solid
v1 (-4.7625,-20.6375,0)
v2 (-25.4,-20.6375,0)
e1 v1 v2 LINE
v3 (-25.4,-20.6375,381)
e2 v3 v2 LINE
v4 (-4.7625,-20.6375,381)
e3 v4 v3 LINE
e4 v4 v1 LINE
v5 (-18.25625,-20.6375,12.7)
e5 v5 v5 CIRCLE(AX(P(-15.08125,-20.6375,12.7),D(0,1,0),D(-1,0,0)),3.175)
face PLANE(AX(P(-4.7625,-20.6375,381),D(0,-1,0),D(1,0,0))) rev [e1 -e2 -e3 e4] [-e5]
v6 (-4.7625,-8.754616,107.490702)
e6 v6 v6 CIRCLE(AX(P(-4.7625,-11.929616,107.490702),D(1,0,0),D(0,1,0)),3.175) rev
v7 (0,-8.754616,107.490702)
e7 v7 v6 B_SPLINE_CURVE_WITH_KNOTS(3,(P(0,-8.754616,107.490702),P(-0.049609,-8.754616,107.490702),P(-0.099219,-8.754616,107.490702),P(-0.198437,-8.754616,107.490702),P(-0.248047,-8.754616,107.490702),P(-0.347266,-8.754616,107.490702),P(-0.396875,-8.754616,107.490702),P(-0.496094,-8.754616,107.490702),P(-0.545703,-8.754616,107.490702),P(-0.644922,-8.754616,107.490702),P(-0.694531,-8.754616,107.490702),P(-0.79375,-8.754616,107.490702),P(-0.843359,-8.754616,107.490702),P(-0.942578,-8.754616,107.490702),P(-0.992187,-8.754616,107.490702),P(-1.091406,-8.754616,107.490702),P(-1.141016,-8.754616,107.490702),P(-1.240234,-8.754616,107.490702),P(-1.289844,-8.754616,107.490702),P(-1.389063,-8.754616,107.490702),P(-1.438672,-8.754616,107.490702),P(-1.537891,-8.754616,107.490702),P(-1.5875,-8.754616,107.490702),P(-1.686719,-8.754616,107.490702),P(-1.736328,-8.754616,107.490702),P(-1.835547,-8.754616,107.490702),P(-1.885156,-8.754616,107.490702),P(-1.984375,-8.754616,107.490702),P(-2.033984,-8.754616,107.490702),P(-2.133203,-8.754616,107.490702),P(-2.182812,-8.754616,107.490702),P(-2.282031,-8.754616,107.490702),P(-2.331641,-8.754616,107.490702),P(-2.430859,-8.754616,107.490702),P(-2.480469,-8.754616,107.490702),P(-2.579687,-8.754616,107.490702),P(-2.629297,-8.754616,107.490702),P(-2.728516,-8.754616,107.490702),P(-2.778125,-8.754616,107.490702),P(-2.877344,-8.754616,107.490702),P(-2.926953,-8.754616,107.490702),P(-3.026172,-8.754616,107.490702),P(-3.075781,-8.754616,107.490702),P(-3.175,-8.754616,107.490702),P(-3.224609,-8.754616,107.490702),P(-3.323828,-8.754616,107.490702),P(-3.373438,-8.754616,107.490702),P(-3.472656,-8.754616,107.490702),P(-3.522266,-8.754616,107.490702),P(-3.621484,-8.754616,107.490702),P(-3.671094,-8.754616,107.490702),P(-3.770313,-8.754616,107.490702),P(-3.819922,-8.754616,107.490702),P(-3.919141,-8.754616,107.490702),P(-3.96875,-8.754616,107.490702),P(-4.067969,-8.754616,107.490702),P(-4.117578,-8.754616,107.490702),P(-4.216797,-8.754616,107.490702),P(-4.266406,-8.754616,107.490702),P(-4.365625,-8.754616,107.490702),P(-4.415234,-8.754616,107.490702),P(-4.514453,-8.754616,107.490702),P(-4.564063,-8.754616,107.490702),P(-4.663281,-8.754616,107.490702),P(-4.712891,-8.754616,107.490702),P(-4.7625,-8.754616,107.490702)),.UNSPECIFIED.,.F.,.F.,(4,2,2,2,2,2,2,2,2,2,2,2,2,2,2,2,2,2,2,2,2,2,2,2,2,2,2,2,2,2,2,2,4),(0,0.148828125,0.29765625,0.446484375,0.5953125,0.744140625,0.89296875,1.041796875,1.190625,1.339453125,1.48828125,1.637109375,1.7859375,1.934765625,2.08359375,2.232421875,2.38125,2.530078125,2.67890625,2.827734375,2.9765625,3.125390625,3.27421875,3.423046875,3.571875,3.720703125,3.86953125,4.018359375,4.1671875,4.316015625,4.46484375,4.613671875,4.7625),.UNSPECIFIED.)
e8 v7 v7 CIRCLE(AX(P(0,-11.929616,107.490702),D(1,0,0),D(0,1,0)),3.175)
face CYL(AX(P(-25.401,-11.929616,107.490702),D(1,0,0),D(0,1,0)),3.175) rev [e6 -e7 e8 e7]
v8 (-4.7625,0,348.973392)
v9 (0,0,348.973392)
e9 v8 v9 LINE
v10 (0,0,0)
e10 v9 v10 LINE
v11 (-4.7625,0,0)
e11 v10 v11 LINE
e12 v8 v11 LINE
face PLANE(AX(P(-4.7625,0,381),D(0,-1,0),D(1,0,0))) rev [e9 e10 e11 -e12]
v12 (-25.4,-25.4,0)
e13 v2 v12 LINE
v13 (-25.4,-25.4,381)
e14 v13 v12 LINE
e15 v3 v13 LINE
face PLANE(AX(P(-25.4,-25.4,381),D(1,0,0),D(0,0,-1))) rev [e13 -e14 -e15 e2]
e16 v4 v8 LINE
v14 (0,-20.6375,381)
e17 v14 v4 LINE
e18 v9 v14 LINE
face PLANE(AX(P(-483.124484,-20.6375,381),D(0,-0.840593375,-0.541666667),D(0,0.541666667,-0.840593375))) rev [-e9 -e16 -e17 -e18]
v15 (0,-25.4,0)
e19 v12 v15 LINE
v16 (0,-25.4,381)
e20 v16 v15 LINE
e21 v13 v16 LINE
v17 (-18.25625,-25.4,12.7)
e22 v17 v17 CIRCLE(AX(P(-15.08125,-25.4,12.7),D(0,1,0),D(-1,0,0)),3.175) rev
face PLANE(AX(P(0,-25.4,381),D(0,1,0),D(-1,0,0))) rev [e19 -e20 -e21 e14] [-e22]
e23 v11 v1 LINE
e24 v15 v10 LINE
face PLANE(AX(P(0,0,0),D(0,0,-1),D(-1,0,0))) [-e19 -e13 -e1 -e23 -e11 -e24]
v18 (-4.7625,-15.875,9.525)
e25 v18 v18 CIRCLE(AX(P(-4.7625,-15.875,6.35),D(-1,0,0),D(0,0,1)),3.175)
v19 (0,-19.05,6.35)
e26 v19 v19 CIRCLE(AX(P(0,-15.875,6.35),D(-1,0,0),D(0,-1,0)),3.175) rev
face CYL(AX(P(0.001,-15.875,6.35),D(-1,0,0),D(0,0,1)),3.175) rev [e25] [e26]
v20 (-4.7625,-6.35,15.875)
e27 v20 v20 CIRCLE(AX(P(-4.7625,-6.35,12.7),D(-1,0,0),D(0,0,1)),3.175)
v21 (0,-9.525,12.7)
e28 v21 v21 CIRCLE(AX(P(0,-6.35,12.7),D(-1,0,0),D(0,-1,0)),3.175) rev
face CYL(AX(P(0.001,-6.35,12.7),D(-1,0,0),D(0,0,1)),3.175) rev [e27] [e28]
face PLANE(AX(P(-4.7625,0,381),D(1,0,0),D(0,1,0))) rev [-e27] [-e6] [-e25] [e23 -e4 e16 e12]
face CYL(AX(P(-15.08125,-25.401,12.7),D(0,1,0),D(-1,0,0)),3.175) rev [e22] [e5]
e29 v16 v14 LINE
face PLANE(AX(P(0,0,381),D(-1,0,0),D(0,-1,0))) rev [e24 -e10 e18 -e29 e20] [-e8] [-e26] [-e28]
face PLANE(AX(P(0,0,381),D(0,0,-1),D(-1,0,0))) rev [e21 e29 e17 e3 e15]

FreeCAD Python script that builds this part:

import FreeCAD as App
import Part
import Sketcher
Q = App.Units.Quantity


def add_polygon(sketch, points):
    """Adds a closed chain of lines whose ends are joined by coincident constraints."""
    first, n = sketch.GeometryCount, len(points)
    for a, b in zip(points, points[1:] + points[:1]):
        sketch.addGeometry(Part.LineSegment(App.Vector(*a, 0), App.Vector(*b, 0)), False)
    for i in range(n):
        sketch.addConstraint(Sketcher.Constraint("Coincident", first + i, 2, first + (i + 1) % n, 1))

doc = App.newDocument("Part")
body = doc.addObject("PartDesign::Body", "Body")

# Sketch on XY plane
sketch1 = doc.addObject("Sketcher::SketchObject", "Sketch")
body.addObject(sketch1)
sketch1.AttachmentSupport = (doc.XY_Plane, [""])
sketch1.MapMode = "FlatFace"
add_polygon(sketch1, [(0, -25.4), (0, 0), (-4.8, 0), (-4.8, -20.6), (-25.4, -20.6), (-25.4, -25.4)])  # lines 0-5
sketch1.addConstraint(Sketcher.Constraint("Vertical", 0))
sketch1.addConstraint(Sketcher.Constraint("Horizontal", 1))
sketch1.addConstraint(Sketcher.Constraint("Vertical", 2))
sketch1.addConstraint(Sketcher.Constraint("Horizontal", 3))
sketch1.addConstraint(Sketcher.Constraint("Vertical", 4))
sketch1.addConstraint(Sketcher.Constraint("Horizontal", 5))
sketch1.addConstraint(Sketcher.Constraint("Coincident", 0, 2, -1, 1))
sketch1.addConstraint(Sketcher.Constraint("Equal", 5, 0))
sketch1.addConstraint(Sketcher.Constraint("Equal", 3, 2))
sketch1.addConstraint(Sketcher.Constraint("DistanceX", 5, 1, 5, 2, Q("1 in")))
sketch1.addConstraint(Sketcher.Constraint("DistanceX", 1, 2, 1, 1, Q("0.1875 in")))
pad1 = doc.addObject("PartDesign::Pad", "Pad")
body.addObject(pad1)
pad1.Profile = sketch1
pad1.Length = Q("15 in")

# Sketch on YZ plane
sketch2 = doc.addObject("Sketcher::SketchObject", "Sketch001")
body.addObject(sketch2)
sketch2.AttachmentSupport = (doc.YZ_Plane, [""])
sketch2.MapMode = "FlatFace"
sketch2.AttachmentOffset = App.Placement(App.Vector(0, 0, -0.1875 * 25.4), App.Rotation())
add_polygon(sketch2, [(-21, 381), (-439, 1031), (860, 1868), (1719, 537), (419, -301), (0, 349)])  # lines 0-5
sketch2.addConstraint(Sketcher.Constraint("PointOnObject", 4, 2, -2))
sketch2.addConstraint(Sketcher.Constraint("Perpendicular", 0, 1))
sketch2.addConstraint(Sketcher.Constraint("Perpendicular", 1, 2))
sketch2.addConstraint(Sketcher.Constraint("Perpendicular", 2, 3))
sketch2.addConstraint(Sketcher.Constraint("Perpendicular", 3, 4))
sketch2.addConstraint(Sketcher.Constraint("Parallel", 4, 5))
sketch2.addConstraint(Sketcher.Constraint("Equal", 0, 4))
sketch2.addConstraint(Sketcher.Constraint("DistanceY", -1, 1, 5, 2, Q("15 in")))
sketch2.addConstraint(Sketcher.Constraint("Distance", 5, Q("1.5 in")))
sketch2.addConstraint(Sketcher.Constraint("DistanceX", 5, 2, -1, 1, Q("0.8125 in")))
sketch2.addConstraint(Sketcher.Constraint("DistanceX", -1, 1, 1, 2, 860.344901))
sketch2.addConstraint(Sketcher.Constraint("DistanceX", 0, 2, 2, 2, 2157.9351))
pocket1 = doc.addObject("PartDesign::Pocket", "Pocket")
body.addObject(pocket1)
pocket1.Profile = sketch2
pocket1.Type = "ThroughAll"
pocket1.Midplane = True

# Sketch on YZ plane
sketch3 = doc.addObject("Sketcher::SketchObject", "Sketch002")
body.addObject(sketch3)
sketch3.AttachmentSupport = (doc.YZ_Plane, [""])
sketch3.MapMode = "FlatFace"
sketch3.AttachmentOffset = App.Placement(App.Vector(0, 0, -0.1875 * 25.4), App.Rotation())
sketch3.addGeometry(Part.Circle(App.Vector(-15.9, 6.3, 0), App.Vector(0, 0, 1), 3.2), False)
sketch3.addConstraint(Sketcher.Constraint("Diameter", 0, Q("0.25 in")))
sketch3.addConstraint(Sketcher.Constraint("DistanceY", -1, 1, 0, 3, Q("0.25 in")))
sketch3.addConstraint(Sketcher.Constraint("DistanceX", 0, 3, -1, 1, Q("0.625 in")))
pocket2 = doc.addObject("PartDesign::Pocket", "Pocket001")
body.addObject(pocket2)
pocket2.Profile = sketch3
pocket2.Type = "UpToFirst"
pocket2.Reversed = True

# Sketch on YZ plane
sketch4 = doc.addObject("Sketcher::SketchObject", "Sketch003")
body.addObject(sketch4)
sketch4.AttachmentSupport = (doc.YZ_Plane, [""])
sketch4.MapMode = "FlatFace"
sketch4.AttachmentOffset = App.Placement(App.Vector(0, 0, -0.1875 * 25.4), App.Rotation())
sketch4.addGeometry(Part.Circle(App.Vector(-6.3, 12.7, 0), App.Vector(0, 0, 1), 3.2), False)
sketch4.addConstraint(Sketcher.Constraint("Diameter", 0, Q("0.25 in")))
sketch4.addConstraint(Sketcher.Constraint("DistanceY", -1, 1, 0, 3, Q("0.5 in")))
sketch4.addConstraint(Sketcher.Constraint("DistanceX", 0, 3, -1, 1, Q("0.25 in")))
pocket3 = doc.addObject("PartDesign::Pocket", "Pocket002")
body.addObject(pocket3)
pocket3.Profile = sketch4
pocket3.Type = "UpToFirst"
pocket3.Reversed = True

# Sketch on YZ plane
sketch5 = doc.addObject("Sketcher::SketchObject", "Sketch004")
body.addObject(sketch5)
sketch5.AttachmentSupport = (doc.YZ_Plane, [""])
sketch5.MapMode = "FlatFace"
sketch5.addGeometry(Part.Circle(App.Vector(-11.9, 107.5, 0), App.Vector(0, 0, 1), 3.2), False)
sketch5.addConstraint(Sketcher.Constraint("Diameter", 0, Q("0.25 in")))
sketch5.addConstraint(Sketcher.Constraint("DistanceY", -1, 1, 0, 3, 107.490702))
sketch5.addConstraint(Sketcher.Constraint("DistanceX", 0, 3, -1, 1, 11.929616))
pocket4 = doc.addObject("PartDesign::Pocket", "Pocket003")
body.addObject(pocket4)
pocket4.Profile = sketch5
pocket4.Type = "UpToFirst"

# Sketch on XZ plane
sketch6 = doc.addObject("Sketcher::SketchObject", "Sketch005")
body.addObject(sketch6)
sketch6.AttachmentSupport = (doc.XZ_Plane, [""])
sketch6.MapMode = "FlatFace"
sketch6.AttachmentOffset = App.Placement(App.Vector(0, 0, 0.8125 * 25.4), App.Rotation())
sketch6.addGeometry(Part.Circle(App.Vector(-15.1, 12.7, 0), App.Vector(0, 0, 1), 3.2), False)
sketch6.addConstraint(Sketcher.Constraint("Diameter", 0, Q("0.25 in")))
sketch6.addConstraint(Sketcher.Constraint("DistanceY", -1, 1, 0, 3, Q("0.5 in")))
sketch6.addConstraint(Sketcher.Constraint("DistanceX", 0, 3, -1, 1, Q("0.59375 in")))
pocket5 = doc.addObject("PartDesign::Pocket", "Pocket004")
body.addObject(pocket5)
pocket5.Profile = sketch6
pocket5.Type = "UpToFirst"
pocket5.Reversed = True

doc.recompute()
